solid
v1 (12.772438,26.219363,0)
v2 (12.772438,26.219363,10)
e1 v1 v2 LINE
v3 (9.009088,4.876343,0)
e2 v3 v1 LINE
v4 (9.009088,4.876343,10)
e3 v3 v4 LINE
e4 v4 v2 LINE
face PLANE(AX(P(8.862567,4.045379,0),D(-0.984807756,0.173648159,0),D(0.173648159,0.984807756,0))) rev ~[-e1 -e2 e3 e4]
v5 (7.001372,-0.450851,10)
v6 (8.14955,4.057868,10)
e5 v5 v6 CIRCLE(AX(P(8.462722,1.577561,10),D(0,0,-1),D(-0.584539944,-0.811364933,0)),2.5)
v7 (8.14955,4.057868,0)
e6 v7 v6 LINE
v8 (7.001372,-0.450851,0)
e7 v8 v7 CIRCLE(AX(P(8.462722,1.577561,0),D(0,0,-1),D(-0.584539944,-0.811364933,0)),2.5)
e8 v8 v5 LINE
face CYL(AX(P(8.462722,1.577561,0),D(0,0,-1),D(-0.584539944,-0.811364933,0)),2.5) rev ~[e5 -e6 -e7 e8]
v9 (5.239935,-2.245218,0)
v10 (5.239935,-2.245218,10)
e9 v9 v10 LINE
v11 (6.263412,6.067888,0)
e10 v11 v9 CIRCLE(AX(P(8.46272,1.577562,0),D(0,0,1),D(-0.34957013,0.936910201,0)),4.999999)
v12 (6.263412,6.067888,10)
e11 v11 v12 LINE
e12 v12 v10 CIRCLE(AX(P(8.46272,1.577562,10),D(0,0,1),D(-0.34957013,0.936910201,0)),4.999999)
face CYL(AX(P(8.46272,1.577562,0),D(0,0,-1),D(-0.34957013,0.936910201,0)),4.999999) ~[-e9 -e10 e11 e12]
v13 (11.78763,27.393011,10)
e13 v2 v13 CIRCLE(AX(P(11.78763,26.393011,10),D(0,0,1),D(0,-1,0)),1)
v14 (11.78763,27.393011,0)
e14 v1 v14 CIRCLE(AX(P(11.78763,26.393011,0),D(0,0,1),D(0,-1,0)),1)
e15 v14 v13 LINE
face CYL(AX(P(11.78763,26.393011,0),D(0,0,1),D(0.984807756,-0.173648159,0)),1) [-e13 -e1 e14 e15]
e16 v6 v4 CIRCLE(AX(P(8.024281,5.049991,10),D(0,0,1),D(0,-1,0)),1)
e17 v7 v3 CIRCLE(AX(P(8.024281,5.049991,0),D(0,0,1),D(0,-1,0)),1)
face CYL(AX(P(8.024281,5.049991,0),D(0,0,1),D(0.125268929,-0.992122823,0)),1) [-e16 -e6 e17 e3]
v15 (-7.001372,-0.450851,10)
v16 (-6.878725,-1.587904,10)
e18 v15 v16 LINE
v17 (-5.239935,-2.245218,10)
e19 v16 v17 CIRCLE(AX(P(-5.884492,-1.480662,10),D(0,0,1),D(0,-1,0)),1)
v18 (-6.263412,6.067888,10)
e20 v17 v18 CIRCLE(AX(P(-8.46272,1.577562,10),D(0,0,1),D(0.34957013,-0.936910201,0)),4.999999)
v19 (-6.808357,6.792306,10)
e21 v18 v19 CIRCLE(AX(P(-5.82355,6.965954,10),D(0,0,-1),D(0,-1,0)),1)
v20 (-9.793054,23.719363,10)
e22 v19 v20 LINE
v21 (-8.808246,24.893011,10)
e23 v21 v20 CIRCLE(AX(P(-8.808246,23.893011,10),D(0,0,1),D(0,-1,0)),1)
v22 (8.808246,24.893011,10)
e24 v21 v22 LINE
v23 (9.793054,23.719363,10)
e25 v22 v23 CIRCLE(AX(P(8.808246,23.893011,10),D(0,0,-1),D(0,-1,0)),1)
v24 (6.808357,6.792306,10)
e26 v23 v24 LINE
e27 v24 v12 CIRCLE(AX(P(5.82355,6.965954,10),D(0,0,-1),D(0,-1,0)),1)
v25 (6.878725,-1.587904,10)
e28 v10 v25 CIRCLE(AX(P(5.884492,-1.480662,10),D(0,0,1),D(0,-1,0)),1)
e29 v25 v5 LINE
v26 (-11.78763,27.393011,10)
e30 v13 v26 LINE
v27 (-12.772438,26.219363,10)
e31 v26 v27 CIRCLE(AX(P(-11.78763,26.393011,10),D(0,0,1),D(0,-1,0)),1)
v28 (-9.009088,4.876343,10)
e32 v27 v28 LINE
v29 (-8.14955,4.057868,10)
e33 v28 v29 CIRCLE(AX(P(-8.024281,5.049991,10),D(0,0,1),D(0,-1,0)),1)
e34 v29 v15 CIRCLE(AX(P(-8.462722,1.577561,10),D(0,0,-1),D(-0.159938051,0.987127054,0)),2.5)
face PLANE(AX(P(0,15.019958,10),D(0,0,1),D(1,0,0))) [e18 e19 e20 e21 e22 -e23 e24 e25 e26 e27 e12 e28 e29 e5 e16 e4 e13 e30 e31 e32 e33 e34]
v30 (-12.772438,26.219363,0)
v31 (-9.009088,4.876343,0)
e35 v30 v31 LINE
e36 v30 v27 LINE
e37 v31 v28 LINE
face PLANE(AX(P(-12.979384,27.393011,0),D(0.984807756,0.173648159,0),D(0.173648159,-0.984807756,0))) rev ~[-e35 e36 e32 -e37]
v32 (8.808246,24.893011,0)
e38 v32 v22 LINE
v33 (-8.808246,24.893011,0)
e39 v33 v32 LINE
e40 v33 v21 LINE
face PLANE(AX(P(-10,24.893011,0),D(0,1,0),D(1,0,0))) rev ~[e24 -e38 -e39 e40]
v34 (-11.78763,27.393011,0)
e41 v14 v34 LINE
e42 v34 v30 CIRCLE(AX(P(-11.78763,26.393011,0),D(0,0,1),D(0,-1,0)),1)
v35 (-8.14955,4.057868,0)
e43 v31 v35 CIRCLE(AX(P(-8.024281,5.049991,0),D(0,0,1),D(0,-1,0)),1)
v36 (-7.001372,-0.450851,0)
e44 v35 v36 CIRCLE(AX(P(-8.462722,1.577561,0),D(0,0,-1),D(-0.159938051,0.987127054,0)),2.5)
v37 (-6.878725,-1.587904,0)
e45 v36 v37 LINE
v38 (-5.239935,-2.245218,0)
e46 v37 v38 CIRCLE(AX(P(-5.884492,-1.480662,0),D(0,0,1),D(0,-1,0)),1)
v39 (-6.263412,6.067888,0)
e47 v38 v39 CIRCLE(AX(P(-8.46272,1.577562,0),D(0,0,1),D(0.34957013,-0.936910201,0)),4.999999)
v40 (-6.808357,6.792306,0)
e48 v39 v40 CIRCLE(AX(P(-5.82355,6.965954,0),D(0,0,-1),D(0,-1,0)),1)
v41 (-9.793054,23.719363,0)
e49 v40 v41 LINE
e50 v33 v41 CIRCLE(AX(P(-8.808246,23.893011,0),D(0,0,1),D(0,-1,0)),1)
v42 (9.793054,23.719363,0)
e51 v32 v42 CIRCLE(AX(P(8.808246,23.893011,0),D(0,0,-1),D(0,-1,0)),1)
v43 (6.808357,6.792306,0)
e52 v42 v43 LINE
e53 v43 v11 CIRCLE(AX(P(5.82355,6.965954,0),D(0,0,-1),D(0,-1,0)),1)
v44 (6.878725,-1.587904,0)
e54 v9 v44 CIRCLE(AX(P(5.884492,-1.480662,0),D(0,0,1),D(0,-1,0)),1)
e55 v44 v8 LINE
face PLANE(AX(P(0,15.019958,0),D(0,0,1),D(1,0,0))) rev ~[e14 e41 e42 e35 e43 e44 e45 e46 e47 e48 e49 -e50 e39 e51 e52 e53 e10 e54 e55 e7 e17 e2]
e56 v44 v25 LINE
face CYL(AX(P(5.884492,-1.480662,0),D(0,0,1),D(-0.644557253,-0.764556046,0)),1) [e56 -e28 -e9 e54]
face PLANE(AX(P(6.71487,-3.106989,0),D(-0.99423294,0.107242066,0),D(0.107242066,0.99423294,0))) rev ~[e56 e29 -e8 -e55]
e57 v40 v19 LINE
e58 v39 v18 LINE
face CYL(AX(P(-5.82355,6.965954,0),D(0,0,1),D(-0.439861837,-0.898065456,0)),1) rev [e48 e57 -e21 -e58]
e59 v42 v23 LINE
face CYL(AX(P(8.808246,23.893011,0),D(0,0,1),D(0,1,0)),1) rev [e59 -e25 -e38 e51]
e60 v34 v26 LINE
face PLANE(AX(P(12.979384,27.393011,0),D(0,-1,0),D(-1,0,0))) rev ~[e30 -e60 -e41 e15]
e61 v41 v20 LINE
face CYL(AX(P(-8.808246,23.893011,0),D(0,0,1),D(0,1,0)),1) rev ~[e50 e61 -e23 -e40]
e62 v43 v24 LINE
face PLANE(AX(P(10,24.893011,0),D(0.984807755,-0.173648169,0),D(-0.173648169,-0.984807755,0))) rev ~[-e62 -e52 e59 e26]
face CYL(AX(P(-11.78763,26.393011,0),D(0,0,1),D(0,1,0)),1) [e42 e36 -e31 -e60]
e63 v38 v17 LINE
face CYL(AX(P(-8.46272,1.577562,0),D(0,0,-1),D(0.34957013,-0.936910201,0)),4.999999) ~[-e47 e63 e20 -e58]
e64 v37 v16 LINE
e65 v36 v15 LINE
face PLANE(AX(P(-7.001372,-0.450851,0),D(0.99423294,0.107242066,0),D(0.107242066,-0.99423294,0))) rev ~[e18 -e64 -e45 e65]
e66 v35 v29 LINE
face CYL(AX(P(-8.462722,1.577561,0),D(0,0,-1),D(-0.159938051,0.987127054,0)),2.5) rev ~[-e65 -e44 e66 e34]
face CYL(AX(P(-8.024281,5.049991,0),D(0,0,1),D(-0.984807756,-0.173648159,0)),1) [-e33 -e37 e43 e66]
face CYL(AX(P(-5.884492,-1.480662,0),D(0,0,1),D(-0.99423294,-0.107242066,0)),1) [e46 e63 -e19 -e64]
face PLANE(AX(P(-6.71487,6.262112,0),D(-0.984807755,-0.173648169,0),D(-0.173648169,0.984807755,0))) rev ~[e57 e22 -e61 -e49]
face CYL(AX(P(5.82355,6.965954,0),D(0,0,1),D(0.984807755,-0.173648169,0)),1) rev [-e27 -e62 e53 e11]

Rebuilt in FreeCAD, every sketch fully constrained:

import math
import FreeCAD as App
import Part
import Sketcher
Q = App.Units.Quantity


def edges_at(feature, points):
    """Names of the edges that pass closest to the given points."""
    edges = feature.Shape.Edges
    near = lambda p: min(range(len(edges)), key=lambda i: edges[i].distToShape(Part.Vertex(*p))[0])
    return sorted({f"Edge{near(p) + 1}" for p in points})

doc = App.newDocument("Part")
body = doc.addObject("PartDesign::Body", "Body")

sketch1 = body.newObject("Sketcher::SketchObject", "Sketch")
sketch1.AttachmentSupport = (doc.getObject("XY_Plane"), [""])
sketch1.MapMode = "FlatFace"
sketch1.addGeometry(Part.LineSegment(App.Vector(-10, 24.9, 0), App.Vector(10, 24.9, 0)), False)
sketch1.addGeometry(Part.LineSegment(App.Vector(10, 24.9, 0), App.Vector(6.7, 6.3, 0)), False)
sketch1.addGeometry(Part.ArcOfCircle(Part.Circle(App.Vector(8.5, 1.6, 0), App.Vector(0, 0, 1), 5), math.radians(110), math.radians(250)), False)
sketch1.addGeometry(Part.LineSegment(App.Vector(6.7, -3.1, 0), App.Vector(7, -0.5, 0)), False)
sketch1.addGeometry(Part.ArcOfCircle(Part.Circle(App.Vector(8.5, 1.6, 0), App.Vector(0, 0, 1), 2.5), math.radians(81), math.radians(234)), False)
sketch1.addGeometry(Part.LineSegment(App.Vector(8.9, 4, 0), App.Vector(13, 27.4, 0)), False)
sketch1.addGeometry(Part.LineSegment(App.Vector(13, 27.4, 0), App.Vector(-13, 27.4, 0)), False)
sketch1.addGeometry(Part.LineSegment(App.Vector(-13, 27.4, 0), App.Vector(-8.9, 4, 0)), False)
sketch1.addGeometry(Part.ArcOfCircle(Part.Circle(App.Vector(-8.5, 1.6, 0), App.Vector(0, 0, 1), 2.5), math.radians(-54), math.radians(99)), False)
sketch1.addGeometry(Part.LineSegment(App.Vector(-7, -0.5, 0), App.Vector(-6.7, -3.1, 0)), False)
sketch1.addGeometry(Part.ArcOfCircle(Part.Circle(App.Vector(-8.5, 1.6, 0), App.Vector(0, 0, 1), 5), math.radians(-70), math.radians(70)), False)
sketch1.addGeometry(Part.LineSegment(App.Vector(-6.7, 6.3, 0), App.Vector(-10, 24.9, 0)), False)
sketch1.addConstraint(Sketcher.Constraint("Coincident", 0, 2, 1, 1))
sketch1.addConstraint(Sketcher.Constraint("Coincident", 1, 2, 2, 1))
sketch1.addConstraint(Sketcher.Constraint("Coincident", 2, 2, 3, 1))
sketch1.addConstraint(Sketcher.Constraint("Coincident", 3, 2, 4, 2))
sketch1.addConstraint(Sketcher.Constraint("Coincident", 4, 1, 5, 1))
sketch1.addConstraint(Sketcher.Constraint("Coincident", 5, 2, 6, 1))
sketch1.addConstraint(Sketcher.Constraint("Coincident", 6, 2, 7, 1))
sketch1.addConstraint(Sketcher.Constraint("Coincident", 7, 2, 8, 2))
sketch1.addConstraint(Sketcher.Constraint("Coincident", 8, 1, 9, 1))
sketch1.addConstraint(Sketcher.Constraint("Coincident", 9, 2, 10, 1))
sketch1.addConstraint(Sketcher.Constraint("Coincident", 10, 2, 11, 1))
sketch1.addConstraint(Sketcher.Constraint("Coincident", 11, 2, 0, 1))
sketch1.addConstraint(Sketcher.Constraint("Horizontal", 0))
sketch1.addConstraint(Sketcher.Constraint("Horizontal", 6))
sketch1.addConstraint(Sketcher.Constraint("Coincident", 4, 3, 2, 3))
sketch1.addConstraint(Sketcher.Constraint("Coincident", 10, 3, 8, 3))
sketch1.addConstraint(Sketcher.Constraint("Equal", 4, 8))
sketch1.addConstraint(Sketcher.Constraint("Equal", 2, 10))
sketch1.addConstraint(Sketcher.Constraint("Symmetric", 2, 3, 8, 3, -2))
sketch1.addConstraint(Sketcher.Constraint("Parallel", 1, 5))
sketch1.addConstraint(Sketcher.Constraint("Parallel", 7, 11))
sketch1.addConstraint(Sketcher.Constraint("Horizontal", 4, 1, 7, 2))
sketch1.addConstraint(Sketcher.Constraint("Horizontal", 3, 2, 8, 1))
sketch1.addConstraint(Sketcher.Constraint("Horizontal", 2, 2, 9, 2))
sketch1.addConstraint(Sketcher.Constraint("Horizontal", 1, 2, 10, 2))
sketch1.addConstraint(Sketcher.Constraint("Vertical", 1, 2, 2, 2))
sketch1.addConstraint(Sketcher.Constraint("Equal", 5, 7))
sketch1.addConstraint(Sketcher.Constraint("Radius", 2, 4.999999))
sketch1.addConstraint(Sketcher.Constraint("Radius", 4, 2.5))
sketch1.addConstraint(Sketcher.Constraint("DistanceX", 0, 1, 0, 2, 20.0))
sketch1.addConstraint(Sketcher.Constraint("Angle", 1, Q("-99.999999 deg")))
sketch1.addConstraint(Sketcher.Constraint("DistanceY", 0, 2, 5, 2, 2.5))
sketch1.addConstraint(Sketcher.Constraint("DistanceY", 1, 2, 0, 2, 18.630899))
sketch1.addConstraint(Sketcher.Constraint("DistanceY", 2, 2, 1, 2, 9.369101))
sketch1.addConstraint(Sketcher.Constraint("DistanceX", 1, 2, 3, 2, 0.286502))
sketch1.addConstraint(Sketcher.Constraint("DistanceX", 6, 2, 6, 1, 25.958768))
sketch1.addConstraint(Sketcher.Constraint("DistanceY", -1, 1, 2, 3, 1.577562))
pad1 = body.newObject("PartDesign::Pad", "Pad")
pad1.Profile = sketch1
pad1.Length = 10
doc.recompute()

fillet = body.newObject("PartDesign::Fillet", "Fillet")
fillet.Base = (pad1, edges_at(pad1, [
    (-6.715, -3.107, 5),
    (6.715, -3.107, 5),
    (-12.979, 27.393, 5),
    (12.979, 27.393, 5),
    (-10, 24.893, 5),
    (10, 24.893, 5),
    (-6.715, 6.262, 5),
    (6.715, 6.262, 5),
    (-8.863, 4.045, 5),
    (8.863, 4.045, 5),
]))
fillet.Radius = 1

doc.recompute()
